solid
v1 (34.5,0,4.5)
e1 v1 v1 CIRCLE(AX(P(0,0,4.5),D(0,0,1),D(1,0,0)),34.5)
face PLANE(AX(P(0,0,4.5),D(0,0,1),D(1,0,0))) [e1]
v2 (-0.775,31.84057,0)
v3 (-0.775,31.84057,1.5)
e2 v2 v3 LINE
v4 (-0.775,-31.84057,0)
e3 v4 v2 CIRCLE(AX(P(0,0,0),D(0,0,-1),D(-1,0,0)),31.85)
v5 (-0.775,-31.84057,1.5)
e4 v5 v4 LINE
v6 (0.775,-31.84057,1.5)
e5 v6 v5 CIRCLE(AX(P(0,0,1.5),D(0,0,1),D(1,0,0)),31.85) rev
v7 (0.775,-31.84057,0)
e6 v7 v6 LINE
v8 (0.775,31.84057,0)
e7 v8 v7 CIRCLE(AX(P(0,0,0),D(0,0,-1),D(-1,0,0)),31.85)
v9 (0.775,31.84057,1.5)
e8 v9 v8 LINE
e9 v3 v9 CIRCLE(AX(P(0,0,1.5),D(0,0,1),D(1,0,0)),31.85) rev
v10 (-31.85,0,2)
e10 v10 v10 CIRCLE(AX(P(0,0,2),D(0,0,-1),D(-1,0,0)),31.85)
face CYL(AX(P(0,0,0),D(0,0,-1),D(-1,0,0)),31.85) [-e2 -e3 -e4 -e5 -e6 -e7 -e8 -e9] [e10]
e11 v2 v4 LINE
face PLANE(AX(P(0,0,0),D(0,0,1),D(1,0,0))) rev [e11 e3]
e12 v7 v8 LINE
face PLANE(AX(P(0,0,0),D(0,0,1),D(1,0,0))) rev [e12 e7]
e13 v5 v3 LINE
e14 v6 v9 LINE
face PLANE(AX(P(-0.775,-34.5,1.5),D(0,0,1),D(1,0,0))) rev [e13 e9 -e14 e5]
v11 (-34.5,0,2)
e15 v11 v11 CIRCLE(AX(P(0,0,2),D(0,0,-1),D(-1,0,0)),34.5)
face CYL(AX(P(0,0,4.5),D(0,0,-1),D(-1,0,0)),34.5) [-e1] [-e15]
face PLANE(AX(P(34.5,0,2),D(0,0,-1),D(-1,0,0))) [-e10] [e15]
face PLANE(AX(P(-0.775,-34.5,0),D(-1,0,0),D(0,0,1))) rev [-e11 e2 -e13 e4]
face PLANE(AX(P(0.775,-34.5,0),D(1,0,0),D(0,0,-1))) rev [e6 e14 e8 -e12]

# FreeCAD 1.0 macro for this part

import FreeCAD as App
import Part
import Sketcher
Q = App.Units.Quantity


def add_polygon(sketch, points):
    """Adds a closed chain of lines whose ends are joined by coincident constraints."""
    first, n = sketch.GeometryCount, len(points)
    for a, b in zip(points, points[1:] + points[:1]):
        sketch.addGeometry(Part.LineSegment(App.Vector(*a, 0), App.Vector(*b, 0)), False)
    for i in range(n):
        sketch.addConstraint(Sketcher.Constraint("Coincident", first + i, 2, first + (i + 1) % n, 1))

doc = App.newDocument("Part")
body = doc.addObject("PartDesign::Body", "Body")

# Sketch on XY plane
sketch1 = doc.addObject("Sketcher::SketchObject", "Sketch")
body.addObject(sketch1)
sketch1.AttachmentSupport = (doc.XY_Plane, [""])
sketch1.MapMode = "FlatFace"
sketch1.addGeometry(Part.Circle(App.Vector(0, 0, 0), App.Vector(0, 0, 1), 34.5), False)
sketch1.addConstraint([
    Sketcher.Constraint("Coincident", 0, 3, -1, 1),
    Sketcher.Constraint("Diameter", 0, Q("69 mm")),
])
pad1 = doc.addObject("PartDesign::Pad", "Pad")
body.addObject(pad1)
pad1.Profile = sketch1
pad1.Length = 4.5

# Sketch on XZ plane
sketch2 = doc.addObject("Sketcher::SketchObject", "Sketch001")
body.addObject(sketch2)
sketch2.AttachmentSupport = (doc.XZ_Plane, [""])
sketch2.MapMode = "FlatFace"
add_polygon(sketch2, [(31.85, 0), (31.85, 2), (34.5, 2), (34.5, 0)])  # lines 0-3
sketch2.addConstraint([
    Sketcher.Constraint("Vertical", 0),
    Sketcher.Constraint("Horizontal", 1),
    Sketcher.Constraint("Vertical", 2),
    Sketcher.Constraint("Horizontal", 3),
    Sketcher.Constraint("PointOnObject", 2, 2, -1),
    Sketcher.Constraint("DistanceY", 0, 1, 0, 2, Q("2 mm")),
    Sketcher.Constraint("DistanceX", 1, 1, 1, 2, Q("2.65 mm")),
    Sketcher.Constraint("DistanceX", -1, 1, 1, 2, Q("34.5 mm")),
])
groove = doc.addObject("PartDesign::Groove", "Groove")
body.addObject(groove)
groove.Profile = sketch2
groove.ReferenceAxis = (sketch2, ["V_Axis"])
groove.Angle = 360

# Sketch on XZ plane
sketch3 = doc.addObject("Sketcher::SketchObject", "Sketch002")
body.addObject(sketch3)
sketch3.AttachmentSupport = (doc.XZ_Plane, [""])
sketch3.MapMode = "FlatFace"
add_polygon(sketch3, [(-0.775, 0), (-0.775, 1.5), (0.775, 1.5), (0.775, 0)])  # lines 0-3
sketch3.addConstraint([
    Sketcher.Constraint("Vertical", 0),
    Sketcher.Constraint("Horizontal", 1),
    Sketcher.Constraint("Vertical", 2),
    Sketcher.Constraint("Horizontal", 3),
    Sketcher.Constraint("Symmetric", 2, 2, 3, 2, -1, 1),
    Sketcher.Constraint("DistanceY", 0, 1, 0, 2, Q("1.5 mm")),
    Sketcher.Constraint("DistanceX", 1, 1, 1, 2, Q("1.55 mm")),
])
pocket1 = doc.addObject("PartDesign::Pocket", "Pocket")
body.addObject(pocket1)
pocket1.Profile = sketch3
pocket1.Type = "ThroughAll"
pocket1.Midplane = True

doc.recompute()
